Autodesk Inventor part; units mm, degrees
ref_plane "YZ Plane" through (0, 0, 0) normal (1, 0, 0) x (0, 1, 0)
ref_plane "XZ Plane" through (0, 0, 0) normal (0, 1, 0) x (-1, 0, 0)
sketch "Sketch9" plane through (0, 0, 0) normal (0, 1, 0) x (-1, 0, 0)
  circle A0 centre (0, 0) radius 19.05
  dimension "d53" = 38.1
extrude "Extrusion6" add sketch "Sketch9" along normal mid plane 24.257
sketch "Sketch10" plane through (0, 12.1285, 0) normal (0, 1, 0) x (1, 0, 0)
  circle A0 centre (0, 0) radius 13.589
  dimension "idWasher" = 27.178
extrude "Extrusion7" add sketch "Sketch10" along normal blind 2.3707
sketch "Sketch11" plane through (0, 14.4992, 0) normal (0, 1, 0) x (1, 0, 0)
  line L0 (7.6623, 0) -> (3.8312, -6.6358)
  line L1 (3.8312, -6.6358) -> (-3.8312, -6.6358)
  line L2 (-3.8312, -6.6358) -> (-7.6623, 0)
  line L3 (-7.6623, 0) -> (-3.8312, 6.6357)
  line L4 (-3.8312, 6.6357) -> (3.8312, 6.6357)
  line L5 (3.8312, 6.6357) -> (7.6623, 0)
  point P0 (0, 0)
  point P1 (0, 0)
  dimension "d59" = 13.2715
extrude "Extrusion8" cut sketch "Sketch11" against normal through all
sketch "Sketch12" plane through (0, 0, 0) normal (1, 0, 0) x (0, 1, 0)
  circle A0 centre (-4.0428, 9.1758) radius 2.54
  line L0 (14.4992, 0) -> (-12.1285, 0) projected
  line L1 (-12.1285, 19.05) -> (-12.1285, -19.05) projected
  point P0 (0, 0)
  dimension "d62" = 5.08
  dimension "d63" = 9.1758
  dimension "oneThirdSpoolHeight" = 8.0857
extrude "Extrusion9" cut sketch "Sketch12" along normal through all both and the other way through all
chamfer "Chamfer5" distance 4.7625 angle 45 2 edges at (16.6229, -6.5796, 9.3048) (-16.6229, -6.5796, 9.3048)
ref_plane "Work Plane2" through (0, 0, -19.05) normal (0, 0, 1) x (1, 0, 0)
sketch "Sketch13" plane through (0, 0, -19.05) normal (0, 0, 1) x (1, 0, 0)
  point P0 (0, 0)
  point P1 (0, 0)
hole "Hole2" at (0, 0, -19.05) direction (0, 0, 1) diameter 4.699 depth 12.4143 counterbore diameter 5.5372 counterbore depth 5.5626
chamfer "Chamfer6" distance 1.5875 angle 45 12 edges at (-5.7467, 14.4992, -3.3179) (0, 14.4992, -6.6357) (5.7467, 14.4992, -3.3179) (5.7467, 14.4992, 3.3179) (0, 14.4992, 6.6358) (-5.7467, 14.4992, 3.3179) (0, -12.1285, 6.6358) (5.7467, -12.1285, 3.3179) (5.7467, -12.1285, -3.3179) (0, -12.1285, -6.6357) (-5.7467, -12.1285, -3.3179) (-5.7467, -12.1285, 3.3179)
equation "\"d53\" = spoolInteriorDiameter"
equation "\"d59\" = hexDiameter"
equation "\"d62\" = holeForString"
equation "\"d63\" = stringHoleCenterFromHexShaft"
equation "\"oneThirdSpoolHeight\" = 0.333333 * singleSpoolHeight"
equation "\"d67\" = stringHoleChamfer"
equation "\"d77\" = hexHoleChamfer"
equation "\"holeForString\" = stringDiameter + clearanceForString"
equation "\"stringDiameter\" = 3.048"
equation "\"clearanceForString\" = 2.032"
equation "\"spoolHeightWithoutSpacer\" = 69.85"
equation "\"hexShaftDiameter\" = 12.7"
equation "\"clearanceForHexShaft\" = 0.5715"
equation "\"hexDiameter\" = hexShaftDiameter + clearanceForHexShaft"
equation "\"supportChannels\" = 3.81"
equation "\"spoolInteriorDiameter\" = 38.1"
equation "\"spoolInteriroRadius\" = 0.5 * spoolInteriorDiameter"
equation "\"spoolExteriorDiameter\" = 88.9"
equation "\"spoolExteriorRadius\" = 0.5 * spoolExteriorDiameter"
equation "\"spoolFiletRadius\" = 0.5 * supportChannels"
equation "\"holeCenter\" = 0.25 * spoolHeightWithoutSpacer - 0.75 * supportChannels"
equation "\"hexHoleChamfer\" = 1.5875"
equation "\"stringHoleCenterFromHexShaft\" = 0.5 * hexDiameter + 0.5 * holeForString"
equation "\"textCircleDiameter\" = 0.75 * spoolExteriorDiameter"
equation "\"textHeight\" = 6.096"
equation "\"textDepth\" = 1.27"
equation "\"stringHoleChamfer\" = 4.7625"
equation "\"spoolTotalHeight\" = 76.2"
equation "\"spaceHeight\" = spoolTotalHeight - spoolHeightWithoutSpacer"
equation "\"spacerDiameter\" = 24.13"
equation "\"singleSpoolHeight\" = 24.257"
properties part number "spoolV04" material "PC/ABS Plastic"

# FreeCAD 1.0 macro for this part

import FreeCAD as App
import Part
import Sketcher
Q = App.Units.Quantity


def edges_at(feature, points):
    """Names of the edges that pass closest to the given points."""
    edges = feature.Shape.Edges
    near = lambda p: min(range(len(edges)), key=lambda i: edges[i].distToShape(Part.Vertex(*p))[0])
    return sorted({f"Edge{near(p) + 1}" for p in points})


def add_polygon(sketch, points):
    """Adds a closed chain of lines whose ends are joined by coincident constraints."""
    first, n = sketch.GeometryCount, len(points)
    for a, b in zip(points, points[1:] + points[:1]):
        sketch.addGeometry(Part.LineSegment(App.Vector(*a, 0), App.Vector(*b, 0)), False)
    for i in range(n):
        sketch.addConstraint(Sketcher.Constraint("Coincident", first + i, 2, first + (i + 1) % n, 1))

doc = App.newDocument("Part")
body = doc.addObject("PartDesign::Body", "Body")

sketch1 = body.newObject("Sketcher::SketchObject", "Sketch")
sketch1.AttachmentSupport = (doc.getObject("XZ_Plane"), [""])
sketch1.MapMode = "FlatFace"
sketch1.addGeometry(Part.Circle(App.Vector(0, 0, 0), App.Vector(0, 0, 1), 19), False)
sketch1.addConstraint(Sketcher.Constraint("Coincident", 0, 3, -1, 1))
sketch1.addConstraint(Sketcher.Constraint("Diameter", 0, Q("1.5 in")))
pad1 = body.newObject("PartDesign::Pad", "Pad")
pad1.Profile = sketch1
pad1.Length = Q("0.955 in")
pad1.Midplane = True

sketch2 = body.newObject("Sketcher::SketchObject", "Sketch001")
sketch2.AttachmentSupport = (doc.getObject("XZ_Plane"), [""])
sketch2.MapMode = "FlatFace"
sketch2.AttachmentOffset = App.Placement(App.Vector(0, 0, -0.4775 * 25.4), App.Rotation())
sketch2.addGeometry(Part.Circle(App.Vector(0, 0, 0), App.Vector(0, 0, 1), 14), False)
sketch2.addConstraint(Sketcher.Constraint("Coincident", 0, 3, -1, 1))
sketch2.addConstraint(Sketcher.Constraint("Diameter", 0, Q("1.07 in")))
pad2 = body.newObject("PartDesign::Pad", "Pad001")
pad2.Profile = sketch2
pad2.Length = 2.3707
pad2.Reversed = True

sketch3 = body.newObject("Sketcher::SketchObject", "Sketch002")
sketch3.AttachmentSupport = (doc.getObject("XZ_Plane"), [""])
sketch3.MapMode = "FlatFace"
sketch3.AttachmentOffset = App.Placement(App.Vector(0, 0, -14.4992), App.Rotation())
add_polygon(sketch3, [(4, 7), (8, 0), (4, -7), (-4, -7), (-8, 0), (-4, 7)])
sketch3.addConstraint(Sketcher.Constraint("Horizontal", 2))
sketch3.addConstraint(Sketcher.Constraint("Horizontal", 5))
sketch3.addConstraint(Sketcher.Constraint("Symmetric", 0, 2, 3, 2, -1, 1))
sketch3.addConstraint(Sketcher.Constraint("Symmetric", 1, 2, 4, 2, -1, 1))
sketch3.addConstraint(Sketcher.Constraint("PointOnObject", 0, 2, -1))
sketch3.addConstraint(Sketcher.Constraint("Parallel", 0, 3))
sketch3.addConstraint(Sketcher.Constraint("Vertical", 2, 2, 4, 2))
sketch3.addConstraint(Sketcher.Constraint("Angle", 0, Q("-60.0005 deg")))
sketch3.addConstraint(Sketcher.Constraint("DistanceY", 2, 2, 4, 2, Q("0.5225 in")))
sketch3.addConstraint(Sketcher.Constraint("DistanceX", 2, 2, 2, 1, Q("7.6624 mm")))
pocket1 = body.newObject("PartDesign::Pocket", "Pocket")
pocket1.Profile = sketch3
pocket1.Type = "ThroughAll"
pocket1.Reversed = True

sketch4 = body.newObject("Sketcher::SketchObject", "Sketch003")
sketch4.AttachmentSupport = (doc.getObject("YZ_Plane"), [""])
sketch4.MapMode = "FlatFace"
sketch4.addGeometry(Part.Circle(App.Vector(-4, 9.2, 0), App.Vector(0, 0, 1), 2.5), False)
sketch4.addConstraint(Sketcher.Constraint("Diameter", 0, Q("0.2 in")))
sketch4.addConstraint(Sketcher.Constraint("DistanceY", -1, 1, 0, 3, Q("9.1758 mm")))
sketch4.addConstraint(Sketcher.Constraint("DistanceX", 0, 3, -1, 1, Q("4.0428 mm")))
pocket2 = body.newObject("PartDesign::Pocket", "Pocket001")
pocket2.Profile = sketch4
pocket2.Type = "ThroughAll"
pocket2.Midplane = True
doc.recompute()

chamfer = body.newObject("PartDesign::Chamfer", "Chamfer")
chamfer.Base = (pocket2, edges_at(pocket2, [(16.623, -6.58, 9.305), (-16.623, -6.58, 9.305)]))
chamfer.Size = Q("0.1875 in")

sketch5 = body.newObject("Sketcher::SketchObject", "Sketch004")
sketch5.AttachmentSupport = (doc.getObject("XY_Plane"), [""])
sketch5.MapMode = "FlatFace"
sketch5.AttachmentOffset = App.Placement(App.Vector(0, 0, -0.75 * 25.4), App.Rotation())
sketch5.addGeometry(Part.Circle(App.Vector(0, 0, 0), App.Vector(0, 0, 1), 2.3), False)
sketch5.addConstraint(Sketcher.Constraint("Coincident", 0, 3, -1, 1))
sketch5.addConstraint(Sketcher.Constraint("Diameter", 0, Q("0.185 in")))
doc.recompute()
hole = body.newObject("PartDesign::Hole", "Hole")
hole.Profile = sketch5
hole.ThreadType = "None"
hole.Diameter = Q("0.185 in")
hole.DepthType = "Dimension"
hole.Depth = 12.4143
hole.DrillPoint = "Flat"
hole.HoleCutType = "Counterbore"
hole.HoleCutDiameter = Q("0.218 in")
hole.HoleCutDepth = Q("0.219 in")
hole.Reversed = True
doc.recompute()

chamfer2 = body.newObject("PartDesign::Chamfer", "Chamfer001")
chamfer2.Base = (hole, edges_at(hole, [
    (-5.747, 14.499, -3.318),
    (0, 14.499, -6.636),
    (5.747, 14.499, -3.318),
    (5.747, 14.499, 3.318),
    (0, 14.499, 6.636),
    (-5.747, 14.499, 3.318),
    (0, -12.129, 6.636),
    (5.747, -12.129, 3.318),
    (5.747, -12.129, -3.318),
    (0, -12.129, -6.636),
    (-5.747, -12.129, -3.318),
    (-5.747, -12.129, 3.318),
]))
chamfer2.Size = Q("0.0625 in")

doc.recompute()
